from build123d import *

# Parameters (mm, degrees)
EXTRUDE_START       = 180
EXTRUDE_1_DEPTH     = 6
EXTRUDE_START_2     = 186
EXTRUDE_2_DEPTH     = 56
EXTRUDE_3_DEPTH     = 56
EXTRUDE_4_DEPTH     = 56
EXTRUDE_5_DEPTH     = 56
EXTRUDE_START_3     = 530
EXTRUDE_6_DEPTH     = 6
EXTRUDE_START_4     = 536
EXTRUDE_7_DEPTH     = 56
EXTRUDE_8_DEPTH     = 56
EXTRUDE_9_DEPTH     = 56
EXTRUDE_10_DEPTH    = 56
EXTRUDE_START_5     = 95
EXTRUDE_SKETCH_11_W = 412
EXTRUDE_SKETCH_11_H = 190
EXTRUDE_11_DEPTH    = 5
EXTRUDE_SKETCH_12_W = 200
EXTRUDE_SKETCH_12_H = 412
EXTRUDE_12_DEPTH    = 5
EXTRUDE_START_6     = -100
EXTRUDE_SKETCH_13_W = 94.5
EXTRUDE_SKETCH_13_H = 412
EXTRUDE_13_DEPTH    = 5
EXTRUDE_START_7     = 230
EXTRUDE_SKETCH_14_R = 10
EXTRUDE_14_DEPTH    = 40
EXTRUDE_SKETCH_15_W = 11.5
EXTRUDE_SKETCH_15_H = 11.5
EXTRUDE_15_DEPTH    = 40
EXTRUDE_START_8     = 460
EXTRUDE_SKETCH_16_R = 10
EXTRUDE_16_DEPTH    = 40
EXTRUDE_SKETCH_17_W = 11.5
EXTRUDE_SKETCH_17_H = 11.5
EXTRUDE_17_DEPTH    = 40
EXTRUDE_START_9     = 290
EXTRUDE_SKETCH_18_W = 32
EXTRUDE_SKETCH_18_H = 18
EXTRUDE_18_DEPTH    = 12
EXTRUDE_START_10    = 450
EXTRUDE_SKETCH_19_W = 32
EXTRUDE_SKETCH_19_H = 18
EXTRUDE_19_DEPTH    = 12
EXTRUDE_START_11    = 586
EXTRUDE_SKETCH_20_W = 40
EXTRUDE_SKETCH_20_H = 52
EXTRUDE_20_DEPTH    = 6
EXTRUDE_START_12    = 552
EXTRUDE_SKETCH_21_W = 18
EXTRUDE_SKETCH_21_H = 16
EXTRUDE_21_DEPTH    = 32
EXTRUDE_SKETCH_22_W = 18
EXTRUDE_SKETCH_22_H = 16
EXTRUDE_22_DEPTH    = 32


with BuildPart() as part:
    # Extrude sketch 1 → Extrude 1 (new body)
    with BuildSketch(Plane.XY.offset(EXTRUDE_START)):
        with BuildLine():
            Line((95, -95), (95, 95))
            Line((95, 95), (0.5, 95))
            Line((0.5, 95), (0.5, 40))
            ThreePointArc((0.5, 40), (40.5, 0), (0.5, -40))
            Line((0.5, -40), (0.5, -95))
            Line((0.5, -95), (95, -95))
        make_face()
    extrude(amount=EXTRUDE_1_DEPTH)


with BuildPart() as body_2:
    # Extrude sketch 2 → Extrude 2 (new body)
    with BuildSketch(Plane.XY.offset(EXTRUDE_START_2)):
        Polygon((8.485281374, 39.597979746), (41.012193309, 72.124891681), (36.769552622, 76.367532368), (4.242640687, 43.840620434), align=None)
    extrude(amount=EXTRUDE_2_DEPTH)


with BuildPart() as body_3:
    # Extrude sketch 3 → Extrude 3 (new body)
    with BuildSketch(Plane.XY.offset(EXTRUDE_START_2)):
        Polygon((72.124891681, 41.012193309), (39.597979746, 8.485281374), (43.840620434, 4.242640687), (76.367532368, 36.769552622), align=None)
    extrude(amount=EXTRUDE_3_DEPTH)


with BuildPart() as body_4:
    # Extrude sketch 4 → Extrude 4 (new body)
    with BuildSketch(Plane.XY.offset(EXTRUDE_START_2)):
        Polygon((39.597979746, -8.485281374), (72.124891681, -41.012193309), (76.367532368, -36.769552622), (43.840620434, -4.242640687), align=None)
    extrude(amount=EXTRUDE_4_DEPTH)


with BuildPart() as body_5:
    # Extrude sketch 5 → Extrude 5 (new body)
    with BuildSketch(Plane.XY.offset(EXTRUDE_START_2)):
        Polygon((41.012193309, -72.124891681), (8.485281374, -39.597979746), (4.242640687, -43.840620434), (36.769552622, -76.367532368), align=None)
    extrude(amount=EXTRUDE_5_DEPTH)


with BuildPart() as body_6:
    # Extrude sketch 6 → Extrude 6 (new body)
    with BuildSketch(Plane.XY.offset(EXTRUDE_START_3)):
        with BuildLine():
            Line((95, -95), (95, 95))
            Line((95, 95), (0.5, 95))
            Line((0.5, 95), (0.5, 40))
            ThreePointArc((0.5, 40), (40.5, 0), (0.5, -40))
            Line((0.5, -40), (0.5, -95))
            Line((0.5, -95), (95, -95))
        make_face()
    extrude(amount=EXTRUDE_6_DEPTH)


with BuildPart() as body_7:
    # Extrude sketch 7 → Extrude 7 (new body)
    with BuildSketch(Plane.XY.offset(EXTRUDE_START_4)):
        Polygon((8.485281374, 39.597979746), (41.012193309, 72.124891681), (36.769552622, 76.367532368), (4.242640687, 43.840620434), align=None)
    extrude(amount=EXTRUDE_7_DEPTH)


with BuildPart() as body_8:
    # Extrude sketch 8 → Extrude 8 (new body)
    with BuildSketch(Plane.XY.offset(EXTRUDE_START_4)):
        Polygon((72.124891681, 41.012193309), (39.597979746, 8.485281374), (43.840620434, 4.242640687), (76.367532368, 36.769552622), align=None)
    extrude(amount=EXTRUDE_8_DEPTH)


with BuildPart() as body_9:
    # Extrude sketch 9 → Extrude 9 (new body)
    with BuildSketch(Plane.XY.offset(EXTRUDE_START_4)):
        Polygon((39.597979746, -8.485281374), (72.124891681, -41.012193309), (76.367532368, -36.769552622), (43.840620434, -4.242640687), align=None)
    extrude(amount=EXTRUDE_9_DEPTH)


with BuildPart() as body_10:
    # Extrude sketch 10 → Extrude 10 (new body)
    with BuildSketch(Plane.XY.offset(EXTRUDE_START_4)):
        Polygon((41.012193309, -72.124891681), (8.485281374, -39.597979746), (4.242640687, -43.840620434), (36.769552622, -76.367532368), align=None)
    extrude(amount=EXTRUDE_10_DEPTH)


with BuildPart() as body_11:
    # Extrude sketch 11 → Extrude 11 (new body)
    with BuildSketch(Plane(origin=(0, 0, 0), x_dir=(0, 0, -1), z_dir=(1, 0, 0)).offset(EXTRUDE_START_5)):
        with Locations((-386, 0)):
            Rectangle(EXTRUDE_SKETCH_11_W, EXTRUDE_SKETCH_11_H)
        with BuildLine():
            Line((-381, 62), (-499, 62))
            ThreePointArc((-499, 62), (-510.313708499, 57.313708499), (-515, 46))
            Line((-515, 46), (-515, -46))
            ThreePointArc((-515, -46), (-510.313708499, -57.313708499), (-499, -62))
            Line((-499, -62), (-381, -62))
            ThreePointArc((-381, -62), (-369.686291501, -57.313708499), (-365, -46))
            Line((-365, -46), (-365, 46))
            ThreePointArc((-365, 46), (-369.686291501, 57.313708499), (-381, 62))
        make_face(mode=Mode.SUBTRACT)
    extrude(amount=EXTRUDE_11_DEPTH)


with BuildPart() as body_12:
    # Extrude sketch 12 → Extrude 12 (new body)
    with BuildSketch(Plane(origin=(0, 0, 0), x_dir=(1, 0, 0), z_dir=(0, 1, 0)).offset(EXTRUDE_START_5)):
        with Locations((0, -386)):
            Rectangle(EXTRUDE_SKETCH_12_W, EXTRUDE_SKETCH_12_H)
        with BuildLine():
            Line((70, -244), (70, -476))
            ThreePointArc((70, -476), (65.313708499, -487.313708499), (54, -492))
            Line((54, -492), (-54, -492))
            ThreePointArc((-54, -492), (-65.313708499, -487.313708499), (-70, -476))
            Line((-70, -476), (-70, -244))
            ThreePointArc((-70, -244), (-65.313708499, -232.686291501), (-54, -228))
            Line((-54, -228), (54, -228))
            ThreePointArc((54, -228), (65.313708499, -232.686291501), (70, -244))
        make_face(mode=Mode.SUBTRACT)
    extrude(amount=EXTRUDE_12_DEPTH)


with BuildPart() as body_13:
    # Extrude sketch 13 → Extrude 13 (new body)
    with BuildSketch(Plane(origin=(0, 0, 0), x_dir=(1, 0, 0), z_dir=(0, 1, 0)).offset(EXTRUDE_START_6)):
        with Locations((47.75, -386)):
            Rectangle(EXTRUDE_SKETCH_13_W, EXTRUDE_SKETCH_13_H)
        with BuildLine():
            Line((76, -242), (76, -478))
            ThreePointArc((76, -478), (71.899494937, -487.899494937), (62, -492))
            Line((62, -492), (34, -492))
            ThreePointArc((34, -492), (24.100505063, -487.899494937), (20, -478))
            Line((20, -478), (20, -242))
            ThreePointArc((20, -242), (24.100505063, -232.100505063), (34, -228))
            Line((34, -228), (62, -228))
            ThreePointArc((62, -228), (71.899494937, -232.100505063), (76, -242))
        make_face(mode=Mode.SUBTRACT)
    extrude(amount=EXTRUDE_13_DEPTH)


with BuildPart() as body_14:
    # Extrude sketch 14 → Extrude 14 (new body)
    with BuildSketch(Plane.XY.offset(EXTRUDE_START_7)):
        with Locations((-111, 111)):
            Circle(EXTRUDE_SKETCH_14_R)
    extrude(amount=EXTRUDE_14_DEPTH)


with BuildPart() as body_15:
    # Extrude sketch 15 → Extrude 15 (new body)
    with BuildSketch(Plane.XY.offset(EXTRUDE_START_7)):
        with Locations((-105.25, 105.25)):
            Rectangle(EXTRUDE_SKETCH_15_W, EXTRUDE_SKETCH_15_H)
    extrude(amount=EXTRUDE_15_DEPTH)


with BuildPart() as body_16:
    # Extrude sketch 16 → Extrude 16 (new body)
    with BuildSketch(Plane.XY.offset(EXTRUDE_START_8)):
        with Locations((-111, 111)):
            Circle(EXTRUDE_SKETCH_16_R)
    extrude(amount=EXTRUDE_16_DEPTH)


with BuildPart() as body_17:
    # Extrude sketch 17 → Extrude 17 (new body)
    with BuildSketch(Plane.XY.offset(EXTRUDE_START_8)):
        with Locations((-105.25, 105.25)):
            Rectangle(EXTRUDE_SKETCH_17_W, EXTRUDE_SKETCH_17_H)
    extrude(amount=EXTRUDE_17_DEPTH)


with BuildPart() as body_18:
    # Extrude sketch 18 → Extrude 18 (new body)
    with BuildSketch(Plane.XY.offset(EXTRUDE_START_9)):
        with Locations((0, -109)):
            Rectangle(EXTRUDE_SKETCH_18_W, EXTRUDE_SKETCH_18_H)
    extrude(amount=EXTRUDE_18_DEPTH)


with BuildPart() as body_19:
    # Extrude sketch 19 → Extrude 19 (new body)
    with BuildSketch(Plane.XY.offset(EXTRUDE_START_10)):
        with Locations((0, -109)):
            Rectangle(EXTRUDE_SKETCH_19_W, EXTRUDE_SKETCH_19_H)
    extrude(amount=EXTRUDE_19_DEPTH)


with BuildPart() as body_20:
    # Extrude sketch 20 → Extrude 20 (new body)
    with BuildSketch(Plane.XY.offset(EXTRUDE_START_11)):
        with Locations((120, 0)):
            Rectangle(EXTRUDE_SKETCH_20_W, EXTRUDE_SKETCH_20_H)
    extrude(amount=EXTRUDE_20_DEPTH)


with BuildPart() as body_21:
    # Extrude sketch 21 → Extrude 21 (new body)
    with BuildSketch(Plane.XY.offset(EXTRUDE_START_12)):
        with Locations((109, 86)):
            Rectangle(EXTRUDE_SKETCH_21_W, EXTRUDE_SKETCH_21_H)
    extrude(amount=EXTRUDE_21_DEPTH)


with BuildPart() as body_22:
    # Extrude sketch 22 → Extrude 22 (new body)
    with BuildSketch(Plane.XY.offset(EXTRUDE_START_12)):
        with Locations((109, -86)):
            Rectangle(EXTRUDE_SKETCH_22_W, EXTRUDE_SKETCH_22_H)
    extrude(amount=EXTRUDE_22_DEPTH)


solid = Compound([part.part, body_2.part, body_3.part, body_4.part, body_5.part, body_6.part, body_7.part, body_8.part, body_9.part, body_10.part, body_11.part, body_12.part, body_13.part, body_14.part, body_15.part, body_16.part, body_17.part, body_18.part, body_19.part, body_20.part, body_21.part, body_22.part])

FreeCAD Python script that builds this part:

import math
import FreeCAD as App
import Part
import Sketcher

V = App.Vector
Q = App.Units.Quantity


def add_polygon(sketch, points):
    """Adds a closed chain of lines whose ends are joined by coincident constraints."""
    first, n = sketch.GeometryCount, len(points)
    for a, b in zip(points, points[1:] + points[:1]):
        sketch.addGeometry(Part.LineSegment(App.Vector(*a, 0), App.Vector(*b, 0)), False)
    for i in range(n):
        sketch.addConstraint(Sketcher.Constraint("Coincident", first + i, 2, first + (i + 1) % n, 1))

doc = App.newDocument("Part")
params = doc.addObject("Spreadsheet::Sheet", "Params")
for row, (alias, value) in enumerate([
    ("sketch1_radius", "40 mm"),
    ("sketch1_height", "190 mm"),
    ("sketch1_width", "94.5 mm"),
    ("pad1_length", "6 mm"),
    ("sketch2_length", "46 mm"),
    ("sketch2_length2", "6 mm"),
    ("pad2_length", "56 mm"),
    ("sketch3_length", "46 mm"),
    ("sketch3_length2", "6 mm"),
    ("pad3_length", "56 mm"),
    ("sketch4_length", "46 mm"),
    ("sketch4_length2", "6 mm"),
    ("pad4_length", "56 mm"),
    ("sketch5_length", "46 mm"),
    ("sketch5_length2", "6 mm"),
    ("pad5_length", "56 mm"),
    ("sketch6_radius", "40 mm"),
    ("sketch6_height", "190 mm"),
    ("sketch6_width", "94.5 mm"),
    ("pad6_length", "6 mm"),
    ("sketch7_length", "46 mm"),
    ("sketch7_length2", "6 mm"),
    ("pad7_length", "56 mm"),
    ("sketch8_length", "46 mm"),
    ("sketch8_length2", "6 mm"),
    ("pad8_length", "56 mm"),
    ("sketch9_length", "46 mm"),
    ("sketch9_length2", "6 mm"),
    ("pad9_length", "56 mm"),
    ("sketch10_length", "46 mm"),
    ("sketch10_length2", "6 mm"),
    ("pad10_length", "56 mm"),
    ("sketch11_radius", "16 mm"),
    ("sketch11_width", "190 mm"),
    ("sketch11_width2", "92 mm"),
    ("sketch11_height", "412 mm"),
    ("sketch11_height2", "118 mm"),
    ("pad11_length", "5 mm"),
    ("sketch12_radius", "16 mm"),
    ("sketch12_width", "200 mm"),
    ("sketch12_width2", "108 mm"),
    ("sketch12_height", "412 mm"),
    ("sketch12_height2", "232 mm"),
    ("pad12_length", "5 mm"),
    ("sketch13_radius", "14 mm"),
    ("sketch13_width", "28 mm"),
    ("sketch13_height", "412 mm"),
    ("sketch13_height2", "236 mm"),
    ("sketch13_width2", "94.5 mm"),
    ("pad13_length", "5 mm"),
    ("sketch14_diameter", "20 mm"),
    ("pad14_length", "40 mm"),
    ("sketch15_width", "11.5 mm"),
    ("pad15_length", "40 mm"),
    ("sketch16_diameter", "20 mm"),
    ("pad16_length", "40 mm"),
    ("sketch17_width", "11.5 mm"),
    ("pad17_length", "40 mm"),
    ("sketch18_width", "32 mm"),
    ("sketch18_height", "18 mm"),
    ("pad18_length", "12 mm"),
    ("sketch19_width", "32 mm"),
    ("sketch19_height", "18 mm"),
    ("pad19_length", "12 mm"),
    ("sketch20_width", "40 mm"),
    ("sketch20_height", "52 mm"),
    ("pad20_length", "6 mm"),
    ("sketch21_width", "18 mm"),
    ("sketch21_height", "16 mm"),
    ("pad21_length", "32 mm"),
    ("sketch22_width", "18 mm"),
    ("sketch22_height", "16 mm"),
    ("pad22_length", "32 mm"),
], start=1):
    params.set(f"A{row}", alias)
    params.set(f"B{row}", "=" + value)
    params.setAlias(f"B{row}", alias)

body = doc.addObject("PartDesign::Body", "Body")

# Sketch on XY plane
sketch1 = body.newObject("Sketcher::SketchObject", "Sketch")
sketch1.AttachmentSupport = (doc.getObject("XY_Plane"), [""])
sketch1.MapMode = "FlatFace"
sketch1.AttachmentOffset = App.Placement(V(0, 0, 180), App.Rotation())
sketch1.addGeometry([
    Part.LineSegment(V(95, -95, 0), V(95, 95, 0)),  # 0
    Part.LineSegment(V(95, 95, 0), V(0, 95, 0)),  # 1
    Part.LineSegment(V(0, 95, 0), V(0, 40, 0)),  # 2
    Part.ArcOfCircle(Part.Circle(V(0, 0, 0), V(0, 0, 1), 40), math.radians(-90), math.radians(90)),  # 3
    Part.LineSegment(V(0, -40, 0), V(0, -95, 0)),  # 4
    Part.LineSegment(V(0, -95, 0), V(95, -95, 0)),  # 5
], False)
sketch1.addConstraint([
    Sketcher.Constraint("Coincident", 0, 2, 1, 1),
    Sketcher.Constraint("Coincident", 1, 2, 2, 1),
    Sketcher.Constraint("Coincident", 2, 2, 3, 2),
    Sketcher.Constraint("Coincident", 3, 1, 4, 1),
    Sketcher.Constraint("Coincident", 4, 2, 5, 1),
    Sketcher.Constraint("Coincident", 5, 2, 0, 1),
    Sketcher.Constraint("Vertical", 0),
    Sketcher.Constraint("Horizontal", 1),
    Sketcher.Constraint("Vertical", 2),
    Sketcher.Constraint("Vertical", 4),
    Sketcher.Constraint("Horizontal", 5),
    Sketcher.Constraint("Symmetric", 2, 2, 3, 1, -1),
    Sketcher.Constraint("Vertical", 3, 3, 1, 2),
    Sketcher.Constraint("Equal", 2, 4),
    Sketcher.Constraint("Radius", 3, 40.0),
    Sketcher.Constraint("DistanceY", 0, 1, 0, 2, 190.0),
    Sketcher.Constraint("DistanceX", 1, 2, 1, 1, 94.5),
    Sketcher.Constraint("DistanceX", -1, 1, 0, 2, 95.0),
])
sketch1.setExpression("Constraints[14]", "Params.sketch1_radius")
sketch1.setExpression("Constraints[15]", "Params.sketch1_height")
sketch1.setExpression("Constraints[16]", "Params.sketch1_width")
pad1 = body.newObject("PartDesign::Pad", "Pad")
pad1.Profile = sketch1
pad1.setExpression("Length", "Params.pad1_length")
body2 = doc.addObject("PartDesign::Body", "Body001")

# Sketch on XY plane
sketch2 = body2.newObject("Sketcher::SketchObject", "Sketch001")
sketch2.AttachmentSupport = (doc.getObject("XY_Plane001"), [""])
sketch2.MapMode = "FlatFace"
sketch2.AttachmentOffset = App.Placement(V(0, 0, 186), App.Rotation())
add_polygon(sketch2, [(8, 40), (41, 72), (37, 76), (4, 44)])  # lines 0-3
sketch2.addConstraint([
    Sketcher.Constraint("Perpendicular", 0, 1),
    Sketcher.Constraint("Perpendicular", 1, 2),
    Sketcher.Constraint("Perpendicular", 2, 3),
    Sketcher.Constraint("Angle", 0, Q("45 deg")),
    Sketcher.Constraint("Distance", 0, 46.0),
    Sketcher.Constraint("Distance", 1, 6.0),
    Sketcher.Constraint("DistanceY", -1, 1, 0, 2, 72.124892),
    Sketcher.Constraint("DistanceX", -1, 1, 2, 2, 4.242641),
])
sketch2.setExpression("Constraints[8]", "Params.sketch2_length")
sketch2.setExpression("Constraints[9]", "Params.sketch2_length2")
pad2 = body2.newObject("PartDesign::Pad", "Pad001")
pad2.Profile = sketch2
pad2.setExpression("Length", "Params.pad2_length")
body3 = doc.addObject("PartDesign::Body", "Body002")

# Sketch on XY plane
sketch3 = body3.newObject("Sketcher::SketchObject", "Sketch002")
sketch3.AttachmentSupport = (doc.getObject("XY_Plane002"), [""])
sketch3.MapMode = "FlatFace"
sketch3.AttachmentOffset = App.Placement(V(0, 0, 186), App.Rotation())
add_polygon(sketch3, [(72, 41), (40, 8), (44, 4), (76, 37)])  # lines 0-3
sketch3.addConstraint([
    Sketcher.Constraint("Perpendicular", 0, 1),
    Sketcher.Constraint("Perpendicular", 1, 2),
    Sketcher.Constraint("Perpendicular", 2, 3),
    Sketcher.Constraint("Angle", 0, Q("-135 deg")),
    Sketcher.Constraint("Distance", 0, 46.0),
    Sketcher.Constraint("Distance", 1, 6.0),
    Sketcher.Constraint("DistanceX", -1, 1, 0, 2, 39.59798),
    Sketcher.Constraint("DistanceY", -1, 1, 0, 2, 8.485281),
])
sketch3.setExpression("Constraints[8]", "Params.sketch3_length")
sketch3.setExpression("Constraints[9]", "Params.sketch3_length2")
pad3 = body3.newObject("PartDesign::Pad", "Pad002")
pad3.Profile = sketch3
pad3.setExpression("Length", "Params.pad3_length")
body4 = doc.addObject("PartDesign::Body", "Body003")

# Sketch on XY plane
sketch4 = body4.newObject("Sketcher::SketchObject", "Sketch003")
sketch4.AttachmentSupport = (doc.getObject("XY_Plane003"), [""])
sketch4.MapMode = "FlatFace"
sketch4.AttachmentOffset = App.Placement(V(0, 0, 186), App.Rotation())
add_polygon(sketch4, [(40, -8), (72, -41), (76, -37), (44, -4)])  # lines 0-3
sketch4.addConstraint([
    Sketcher.Constraint("Perpendicular", 0, 1),
    Sketcher.Constraint("Perpendicular", 1, 2),
    Sketcher.Constraint("Perpendicular", 2, 3),
    Sketcher.Constraint("Angle", 0, Q("-45 deg")),
    Sketcher.Constraint("Distance", 0, 46.0),
    Sketcher.Constraint("Distance", 1, 6.0),
    Sketcher.Constraint("DistanceX", -1, 1, 0, 2, 72.124892),
    Sketcher.Constraint("DistanceY", 2, 2, -1, 1, 4.242641),
])
sketch4.setExpression("Constraints[8]", "Params.sketch4_length")
sketch4.setExpression("Constraints[9]", "Params.sketch4_length2")
pad4 = body4.newObject("PartDesign::Pad", "Pad003")
pad4.Profile = sketch4
pad4.setExpression("Length", "Params.pad4_length")
body5 = doc.addObject("PartDesign::Body", "Body004")

# Sketch on XY plane
sketch5 = body5.newObject("Sketcher::SketchObject", "Sketch004")
sketch5.AttachmentSupport = (doc.getObject("XY_Plane004"), [""])
sketch5.MapMode = "FlatFace"
sketch5.AttachmentOffset = App.Placement(V(0, 0, 186), App.Rotation())
add_polygon(sketch5, [(41, -72), (8, -40), (4, -44), (37, -76)])  # lines 0-3
sketch5.addConstraint([
    Sketcher.Constraint("Perpendicular", 0, 1),
    Sketcher.Constraint("Perpendicular", 1, 2),
    Sketcher.Constraint("Perpendicular", 2, 3),
    Sketcher.Constraint("Angle", 0, Q("135 deg")),
    Sketcher.Constraint("Distance", 0, 46.0),
    Sketcher.Constraint("Distance", 1, 6.0),
    Sketcher.Constraint("DistanceX", -1, 1, 0, 2, 8.485281),
    Sketcher.Constraint("DistanceY", 0, 2, -1, 1, 39.59798),
])
sketch5.setExpression("Constraints[8]", "Params.sketch5_length")
sketch5.setExpression("Constraints[9]", "Params.sketch5_length2")
pad5 = body5.newObject("PartDesign::Pad", "Pad004")
pad5.Profile = sketch5
pad5.setExpression("Length", "Params.pad5_length")
body6 = doc.addObject("PartDesign::Body", "Body005")

# Sketch on XY plane
sketch6 = body6.newObject("Sketcher::SketchObject", "Sketch005")
sketch6.AttachmentSupport = (doc.getObject("XY_Plane005"), [""])
sketch6.MapMode = "FlatFace"
sketch6.AttachmentOffset = App.Placement(V(0, 0, 530), App.Rotation())
sketch6.addGeometry([
    Part.LineSegment(V(95, -95, 0), V(95, 95, 0)),  # 0
    Part.LineSegment(V(95, 95, 0), V(0, 95, 0)),  # 1
    Part.LineSegment(V(0, 95, 0), V(0, 40, 0)),  # 2
    Part.ArcOfCircle(Part.Circle(V(0, 0, 0), V(0, 0, 1), 40), math.radians(-90), math.radians(90)),  # 3
    Part.LineSegment(V(0, -40, 0), V(0, -95, 0)),  # 4
    Part.LineSegment(V(0, -95, 0), V(95, -95, 0)),  # 5
], False)
sketch6.addConstraint([
    Sketcher.Constraint("Coincident", 0, 2, 1, 1),
    Sketcher.Constraint("Coincident", 1, 2, 2, 1),
    Sketcher.Constraint("Coincident", 2, 2, 3, 2),
    Sketcher.Constraint("Coincident", 3, 1, 4, 1),
    Sketcher.Constraint("Coincident", 4, 2, 5, 1),
    Sketcher.Constraint("Coincident", 5, 2, 0, 1),
    Sketcher.Constraint("Vertical", 0),
    Sketcher.Constraint("Horizontal", 1),
    Sketcher.Constraint("Vertical", 2),
    Sketcher.Constraint("Vertical", 4),
    Sketcher.Constraint("Horizontal", 5),
    Sketcher.Constraint("Symmetric", 2, 2, 3, 1, -1),
    Sketcher.Constraint("Vertical", 3, 3, 1, 2),
    Sketcher.Constraint("Equal", 2, 4),
    Sketcher.Constraint("Radius", 3, 40.0),
    Sketcher.Constraint("DistanceY", 0, 1, 0, 2, 190.0),
    Sketcher.Constraint("DistanceX", 1, 2, 1, 1, 94.5),
    Sketcher.Constraint("DistanceX", -1, 1, 0, 2, 95.0),
])
sketch6.setExpression("Constraints[14]", "Params.sketch6_radius")
sketch6.setExpression("Constraints[15]", "Params.sketch6_height")
sketch6.setExpression("Constraints[16]", "Params.sketch6_width")
pad6 = body6.newObject("PartDesign::Pad", "Pad005")
pad6.Profile = sketch6
pad6.setExpression("Length", "Params.pad6_length")
body7 = doc.addObject("PartDesign::Body", "Body006")

# Sketch on XY plane
sketch7 = body7.newObject("Sketcher::SketchObject", "Sketch006")
sketch7.AttachmentSupport = (doc.getObject("XY_Plane006"), [""])
sketch7.MapMode = "FlatFace"
sketch7.AttachmentOffset = App.Placement(V(0, 0, 536), App.Rotation())
add_polygon(sketch7, [(8, 40), (41, 72), (37, 76), (4, 44)])  # lines 0-3
sketch7.addConstraint([
    Sketcher.Constraint("Perpendicular", 0, 1),
    Sketcher.Constraint("Perpendicular", 1, 2),
    Sketcher.Constraint("Perpendicular", 2, 3),
    Sketcher.Constraint("Angle", 0, Q("45 deg")),
    Sketcher.Constraint("Distance", 0, 46.0),
    Sketcher.Constraint("Distance", 1, 6.0),
    Sketcher.Constraint("DistanceY", -1, 1, 0, 2, 72.124892),
    Sketcher.Constraint("DistanceX", -1, 1, 2, 2, 4.242641),
])
sketch7.setExpression("Constraints[8]", "Params.sketch7_length")
sketch7.setExpression("Constraints[9]", "Params.sketch7_length2")
pad7 = body7.newObject("PartDesign::Pad", "Pad006")
pad7.Profile = sketch7
pad7.setExpression("Length", "Params.pad7_length")
body8 = doc.addObject("PartDesign::Body", "Body007")

# Sketch on XY plane
sketch8 = body8.newObject("Sketcher::SketchObject", "Sketch007")
sketch8.AttachmentSupport = (doc.getObject("XY_Plane007"), [""])
sketch8.MapMode = "FlatFace"
sketch8.AttachmentOffset = App.Placement(V(0, 0, 536), App.Rotation())
add_polygon(sketch8, [(72, 41), (40, 8), (44, 4), (76, 37)])  # lines 0-3
sketch8.addConstraint([
    Sketcher.Constraint("Perpendicular", 0, 1),
    Sketcher.Constraint("Perpendicular", 1, 2),
    Sketcher.Constraint("Perpendicular", 2, 3),
    Sketcher.Constraint("Angle", 0, Q("-135 deg")),
    Sketcher.Constraint("Distance", 0, 46.0),
    Sketcher.Constraint("Distance", 1, 6.0),
    Sketcher.Constraint("DistanceX", -1, 1, 0, 2, 39.59798),
    Sketcher.Constraint("DistanceY", -1, 1, 0, 2, 8.485281),
])
sketch8.setExpression("Constraints[8]", "Params.sketch8_length")
sketch8.setExpression("Constraints[9]", "Params.sketch8_length2")
pad8 = body8.newObject("PartDesign::Pad", "Pad007")
pad8.Profile = sketch8
pad8.setExpression("Length", "Params.pad8_length")
body9 = doc.addObject("PartDesign::Body", "Body008")

# Sketch on XY plane
sketch9 = body9.newObject("Sketcher::SketchObject", "Sketch008")
sketch9.AttachmentSupport = (doc.getObject("XY_Plane008"), [""])
sketch9.MapMode = "FlatFace"
sketch9.AttachmentOffset = App.Placement(V(0, 0, 536), App.Rotation())
add_polygon(sketch9, [(40, -8), (72, -41), (76, -37), (44, -4)])  # lines 0-3
sketch9.addConstraint([
    Sketcher.Constraint("Perpendicular", 0, 1),
    Sketcher.Constraint("Perpendicular", 1, 2),
    Sketcher.Constraint("Perpendicular", 2, 3),
    Sketcher.Constraint("Angle", 0, Q("-45 deg")),
    Sketcher.Constraint("Distance", 0, 46.0),
    Sketcher.Constraint("Distance", 1, 6.0),
    Sketcher.Constraint("DistanceX", -1, 1, 0, 2, 72.124892),
    Sketcher.Constraint("DistanceY", 2, 2, -1, 1, 4.242641),
])
sketch9.setExpression("Constraints[8]", "Params.sketch9_length")
sketch9.setExpression("Constraints[9]", "Params.sketch9_length2")
pad9 = body9.newObject("PartDesign::Pad", "Pad008")
pad9.Profile = sketch9
pad9.setExpression("Length", "Params.pad9_length")
body10 = doc.addObject("PartDesign::Body", "Body009")

# Sketch on XY plane
sketch10 = body10.newObject("Sketcher::SketchObject", "Sketch009")
sketch10.AttachmentSupport = (doc.getObject("XY_Plane009"), [""])
sketch10.MapMode = "FlatFace"
sketch10.AttachmentOffset = App.Placement(V(0, 0, 536), App.Rotation())
add_polygon(sketch10, [(41, -72), (8, -40), (4, -44), (37, -76)])  # lines 0-3
sketch10.addConstraint([
    Sketcher.Constraint("Perpendicular", 0, 1),
    Sketcher.Constraint("Perpendicular", 1, 2),
    Sketcher.Constraint("Perpendicular", 2, 3),
    Sketcher.Constraint("Angle", 0, Q("135 deg")),
    Sketcher.Constraint("Distance", 0, 46.0),
    Sketcher.Constraint("Distance", 1, 6.0),
    Sketcher.Constraint("DistanceX", -1, 1, 0, 2, 8.485281),
    Sketcher.Constraint("DistanceY", 0, 2, -1, 1, 39.59798),
])
sketch10.setExpression("Constraints[8]", "Params.sketch10_length")
sketch10.setExpression("Constraints[9]", "Params.sketch10_length2")
pad10 = body10.newObject("PartDesign::Pad", "Pad009")
pad10.Profile = sketch10
pad10.setExpression("Length", "Params.pad10_length")
body11 = doc.addObject("PartDesign::Body", "Body010")

# Sketch on YZ plane
sketch11 = body11.newObject("Sketcher::SketchObject", "Sketch010")
sketch11.AttachmentSupport = (doc.getObject("YZ_Plane010"), [""])
sketch11.MapMode = "FlatFace"
sketch11.AttachmentOffset = App.Placement(V(0, 0, 95), App.Rotation())
add_polygon(sketch11, [(95, 592), (-95, 592), (-95, 180), (95, 180)])  # lines 0-3
sketch11.addGeometry(Part.LineSegment(V(62, 499, 0), V(62, 381, 0)), False)  # 4
sketch11.addGeometry(Part.ArcOfCircle(Part.Circle(V(46, 381, 0), V(0, 0, 1), 16), math.radians(-90), math.radians(0)), False)  # 5
sketch11.addGeometry(Part.LineSegment(V(46, 365, 0), V(-46, 365, 0)), False)  # 6
sketch11.addGeometry(Part.ArcOfCircle(Part.Circle(V(-46, 381, 0), V(0, 0, 1), 16), math.radians(180), math.radians(270)), False)  # 7
sketch11.addGeometry(Part.LineSegment(V(-62, 381, 0), V(-62, 499, 0)), False)  # 8
sketch11.addGeometry(Part.ArcOfCircle(Part.Circle(V(-46, 499, 0), V(0, 0, 1), 16), math.radians(90), math.radians(180)), False)  # 9
sketch11.addGeometry(Part.LineSegment(V(-46, 515, 0), V(46, 515, 0)), False)  # 10
sketch11.addGeometry(Part.ArcOfCircle(Part.Circle(V(46, 499, 0), V(0, 0, 1), 16), math.radians(0), math.radians(90)), False)  # 11
sketch11.addConstraint([
    Sketcher.Constraint("Tangent", 4, 2, 5, 2),
    Sketcher.Constraint("Tangent", 5, 1, 6, 1),
    Sketcher.Constraint("Tangent", 6, 2, 7, 2),
    Sketcher.Constraint("Tangent", 7, 1, 8, 1),
    Sketcher.Constraint("Tangent", 8, 2, 9, 2),
    Sketcher.Constraint("Tangent", 9, 1, 10, 1),
    Sketcher.Constraint("Tangent", 10, 2, 11, 2),
    Sketcher.Constraint("Tangent", 11, 1, 4, 1),
    Sketcher.Constraint("Horizontal", 0),
    Sketcher.Constraint("Vertical", 1),
    Sketcher.Constraint("Horizontal", 2),
    Sketcher.Constraint("Vertical", 3),
    Sketcher.Constraint("Vertical", 4),
    Sketcher.Constraint("Horizontal", 6),
    Sketcher.Constraint("Vertical", 8),
    Sketcher.Constraint("Horizontal", 10),
    Sketcher.Constraint("Equal", 5, 7),
    Sketcher.Constraint("Equal", 7, 9),
    Sketcher.Constraint("Equal", 9, 11),
    Sketcher.Constraint("Radius", 5, 16.0),
    Sketcher.Constraint("DistanceX", 0, 2, 0, 1, 190.0),
    Sketcher.Constraint("DistanceX", 6, 2, 6, 1, 92.0),
    Sketcher.Constraint("DistanceY", 1, 2, 1, 1, 412.0),
    Sketcher.Constraint("DistanceY", 4, 2, 4, 1, 118.0),
    Sketcher.Constraint("DistanceX", -1, 1, 5, 3, 46.0),
    Sketcher.Constraint("DistanceY", -1, 1, 5, 3, 381.0),
    Sketcher.Constraint("DistanceX", 0, 2, -1, 1, 95.0),
    Sketcher.Constraint("DistanceY", -1, 1, 0, 2, 592.0),
])
sketch11.setExpression("Constraints[23]", "Params.sketch11_radius")
sketch11.setExpression("Constraints[24]", "Params.sketch11_width")
sketch11.setExpression("Constraints[25]", "Params.sketch11_width2")
sketch11.setExpression("Constraints[26]", "Params.sketch11_height")
sketch11.setExpression("Constraints[27]", "Params.sketch11_height2")
pad11 = body11.newObject("PartDesign::Pad", "Pad010")
pad11.Profile = sketch11
pad11.setExpression("Length", "Params.pad11_length")
body12 = doc.addObject("PartDesign::Body", "Body011")

# Sketch on XZ plane
sketch12 = body12.newObject("Sketcher::SketchObject", "Sketch011")
sketch12.AttachmentSupport = (doc.getObject("XZ_Plane011"), [""])
sketch12.MapMode = "FlatFace"
sketch12.AttachmentOffset = App.Placement(V(0, 0, -95), App.Rotation())
add_polygon(sketch12, [(-100, 180), (-100, 592), (100, 592), (100, 180)])  # lines 0-3
sketch12.addGeometry(Part.ArcOfCircle(Part.Circle(V(54, 244, 0), V(0, 0, 1), 16), math.radians(-90), math.radians(0)), False)  # 4
sketch12.addGeometry(Part.LineSegment(V(70, 244, 0), V(70, 476, 0)), False)  # 5
sketch12.addGeometry(Part.ArcOfCircle(Part.Circle(V(54, 476, 0), V(0, 0, 1), 16), math.radians(0), math.radians(90)), False)  # 6
sketch12.addGeometry(Part.LineSegment(V(54, 492, 0), V(-54, 492, 0)), False)  # 7
sketch12.addGeometry(Part.ArcOfCircle(Part.Circle(V(-54, 476, 0), V(0, 0, 1), 16), math.radians(90), math.radians(180)), False)  # 8
sketch12.addGeometry(Part.LineSegment(V(-70, 476, 0), V(-70, 244, 0)), False)  # 9
sketch12.addGeometry(Part.ArcOfCircle(Part.Circle(V(-54, 244, 0), V(0, 0, 1), 16), math.radians(180), math.radians(270)), False)  # 10
sketch12.addGeometry(Part.LineSegment(V(-54, 228, 0), V(54, 228, 0)), False)  # 11
sketch12.addConstraint([
    Sketcher.Constraint("Tangent", 4, 2, 5, 1),
    Sketcher.Constraint("Tangent", 5, 2, 6, 1),
    Sketcher.Constraint("Tangent", 6, 2, 7, 1),
    Sketcher.Constraint("Tangent", 7, 2, 8, 1),
    Sketcher.Constraint("Tangent", 8, 2, 9, 1),
    Sketcher.Constraint("Tangent", 9, 2, 10, 1),
    Sketcher.Constraint("Tangent", 10, 2, 11, 1),
    Sketcher.Constraint("Tangent", 11, 2, 4, 1),
    Sketcher.Constraint("Vertical", 0),
    Sketcher.Constraint("Horizontal", 1),
    Sketcher.Constraint("Vertical", 2),
    Sketcher.Constraint("Horizontal", 3),
    Sketcher.Constraint("Vertical", 5),
    Sketcher.Constraint("Horizontal", 7),
    Sketcher.Constraint("Vertical", 9),
    Sketcher.Constraint("Horizontal", 11),
    Sketcher.Constraint("Equal", 4, 6),
    Sketcher.Constraint("Equal", 6, 8),
    Sketcher.Constraint("Equal", 8, 10),
    Sketcher.Constraint("Radius", 4, 16.0),
    Sketcher.Constraint("DistanceX", 1, 1, 1, 2, 200.0),
    Sketcher.Constraint("DistanceX", 7, 2, 7, 1, 108.0),
    Sketcher.Constraint("DistanceY", 0, 1, 0, 2, 412.0),
    Sketcher.Constraint("DistanceY", 5, 1, 5, 2, 232.0),
    Sketcher.Constraint("DistanceX", -1, 1, 4, 3, 54.0),
    Sketcher.Constraint("DistanceY", -1, 1, 4, 3, 244.0),
    Sketcher.Constraint("DistanceX", 0, 2, -1, 1, 100.0),
    Sketcher.Constraint("DistanceY", -1, 1, 0, 2, 592.0),
])
sketch12.setExpression("Constraints[23]", "Params.sketch12_radius")
sketch12.setExpression("Constraints[24]", "Params.sketch12_width")
sketch12.setExpression("Constraints[25]", "Params.sketch12_width2")
sketch12.setExpression("Constraints[26]", "Params.sketch12_height")
sketch12.setExpression("Constraints[27]", "Params.sketch12_height2")
pad12 = body12.newObject("PartDesign::Pad", "Pad011")
pad12.Profile = sketch12
pad12.setExpression("Length", "Params.pad12_length")
pad12.Reversed = True
body13 = doc.addObject("PartDesign::Body", "Body012")

# Sketch on XZ plane
sketch13 = body13.newObject("Sketcher::SketchObject", "Sketch012")
sketch13.AttachmentSupport = (doc.getObject("XZ_Plane012"), [""])
sketch13.MapMode = "FlatFace"
sketch13.AttachmentOffset = App.Placement(V(0, 0, 100), App.Rotation())
add_polygon(sketch13, [(0, 180), (0, 592), (95, 592), (95, 180)])  # lines 0-3
sketch13.addGeometry(Part.ArcOfCircle(Part.Circle(V(62, 242, 0), V(0, 0, 1), 14), math.radians(-90), math.radians(0)), False)  # 4
sketch13.addGeometry(Part.LineSegment(V(76, 242, 0), V(76, 478, 0)), False)  # 5
sketch13.addGeometry(Part.ArcOfCircle(Part.Circle(V(62, 478, 0), V(0, 0, 1), 14), math.radians(0), math.radians(90)), False)  # 6
sketch13.addGeometry(Part.LineSegment(V(62, 492, 0), V(34, 492, 0)), False)  # 7
sketch13.addGeometry(Part.ArcOfCircle(Part.Circle(V(34, 478, 0), V(0, 0, 1), 14), math.radians(90), math.radians(180)), False)  # 8
sketch13.addGeometry(Part.LineSegment(V(20, 478, 0), V(20, 242, 0)), False)  # 9
sketch13.addGeometry(Part.ArcOfCircle(Part.Circle(V(34, 242, 0), V(0, 0, 1), 14), math.radians(180), math.radians(270)), False)  # 10
sketch13.addGeometry(Part.LineSegment(V(34, 228, 0), V(62, 228, 0)), False)  # 11
sketch13.addConstraint([
    Sketcher.Constraint("Tangent", 4, 2, 5, 1),
    Sketcher.Constraint("Tangent", 5, 2, 6, 1),
    Sketcher.Constraint("Tangent", 6, 2, 7, 1),
    Sketcher.Constraint("Tangent", 7, 2, 8, 1),
    Sketcher.Constraint("Tangent", 8, 2, 9, 1),
    Sketcher.Constraint("Tangent", 9, 2, 10, 1),
    Sketcher.Constraint("Tangent", 10, 2, 11, 1),
    Sketcher.Constraint("Tangent", 11, 2, 4, 1),
    Sketcher.Constraint("Vertical", 0),
    Sketcher.Constraint("Horizontal", 1),
    Sketcher.Constraint("Vertical", 2),
    Sketcher.Constraint("Horizontal", 3),
    Sketcher.Constraint("Vertical", 5),
    Sketcher.Constraint("Horizontal", 7),
    Sketcher.Constraint("Vertical", 9),
    Sketcher.Constraint("Horizontal", 11),
    Sketcher.Constraint("Equal", 4, 6),
    Sketcher.Constraint("Equal", 6, 8),
    Sketcher.Constraint("Equal", 8, 10),
    Sketcher.Constraint("Radius", 4, 14.0),
    Sketcher.Constraint("DistanceX", 7, 2, 7, 1, 28.0),
    Sketcher.Constraint("DistanceY", 0, 1, 0, 2, 412.0),
    Sketcher.Constraint("DistanceY", 5, 1, 5, 2, 236.0),
    Sketcher.Constraint("DistanceX", 1, 1, 1, 2, 94.5),
    Sketcher.Constraint("DistanceX", -1, 1, 4, 3, 62.0),
    Sketcher.Constraint("DistanceY", -1, 1, 4, 3, 242.0),
    Sketcher.Constraint("DistanceY", -1, 1, 0, 2, 592.0),
    Sketcher.Constraint("DistanceX", -1, 1, 1, 2, 95.0),
])
sketch13.setExpression("Constraints[23]", "Params.sketch13_radius")
sketch13.setExpression("Constraints[24]", "Params.sketch13_width")
sketch13.setExpression("Constraints[25]", "Params.sketch13_height")
sketch13.setExpression("Constraints[26]", "Params.sketch13_height2")
sketch13.setExpression("Constraints[27]", "Params.sketch13_width2")
pad13 = body13.newObject("PartDesign::Pad", "Pad012")
pad13.Profile = sketch13
pad13.setExpression("Length", "Params.pad13_length")
pad13.Reversed = True
body14 = doc.addObject("PartDesign::Body", "Body013")

# Sketch on XY plane
sketch14 = body14.newObject("Sketcher::SketchObject", "Sketch013")
sketch14.AttachmentSupport = (doc.getObject("XY_Plane013"), [""])
sketch14.MapMode = "FlatFace"
sketch14.AttachmentOffset = App.Placement(V(0, 0, 230), App.Rotation())
sketch14.addGeometry(Part.Circle(V(-111, 111, 0), V(0, 0, 1), 10), False)
sketch14.addConstraint([
    Sketcher.Constraint("Diameter", 0, 20.0),
    Sketcher.Constraint("DistanceX", 0, 3, -1, 1, 111.0),
    Sketcher.Constraint("DistanceY", -1, 1, 0, 3, 111.0),
])
sketch14.setExpression("Constraints[0]", "Params.sketch14_diameter")
pad14 = body14.newObject("PartDesign::Pad", "Pad013")
pad14.Profile = sketch14
pad14.setExpression("Length", "Params.pad14_length")
body15 = doc.addObject("PartDesign::Body", "Body014")

# Sketch on XY plane
sketch15 = body15.newObject("Sketcher::SketchObject", "Sketch014")
sketch15.AttachmentSupport = (doc.getObject("XY_Plane014"), [""])
sketch15.MapMode = "FlatFace"
sketch15.AttachmentOffset = App.Placement(V(0, 0, 230), App.Rotation())
add_polygon(sketch15, [(-111, 111), (-111, 100), (-100, 100), (-100, 111)])  # lines 0-3
sketch15.addConstraint([
    Sketcher.Constraint("Vertical", 0),
    Sketcher.Constraint("Horizontal", 1),
    Sketcher.Constraint("Vertical", 2),
    Sketcher.Constraint("Horizontal", 3),
    Sketcher.Constraint("Equal", 3, 0),
    Sketcher.Constraint("DistanceX", 1, 1, 1, 2, 11.5),
    Sketcher.Constraint("DistanceX", 0, 2, -1, 1, 111.0),
    Sketcher.Constraint("DistanceY", -1, 1, 2, 2, 111.0),
])
sketch15.setExpression("Constraints[9]", "Params.sketch15_width")
pad15 = body15.newObject("PartDesign::Pad", "Pad014")
pad15.Profile = sketch15
pad15.setExpression("Length", "Params.pad15_length")
body16 = doc.addObject("PartDesign::Body", "Body015")

# Sketch on XY plane
sketch16 = body16.newObject("Sketcher::SketchObject", "Sketch015")
sketch16.AttachmentSupport = (doc.getObject("XY_Plane015"), [""])
sketch16.MapMode = "FlatFace"
sketch16.AttachmentOffset = App.Placement(V(0, 0, 460), App.Rotation())
sketch16.addGeometry(Part.Circle(V(-111, 111, 0), V(0, 0, 1), 10), False)
sketch16.addConstraint([
    Sketcher.Constraint("Diameter", 0, 20.0),
    Sketcher.Constraint("DistanceX", 0, 3, -1, 1, 111.0),
    Sketcher.Constraint("DistanceY", -1, 1, 0, 3, 111.0),
])
sketch16.setExpression("Constraints[0]", "Params.sketch16_diameter")
pad16 = body16.newObject("PartDesign::Pad", "Pad015")
pad16.Profile = sketch16
pad16.setExpression("Length", "Params.pad16_length")
body17 = doc.addObject("PartDesign::Body", "Body016")

# Sketch on XY plane
sketch17 = body17.newObject("Sketcher::SketchObject", "Sketch016")
sketch17.AttachmentSupport = (doc.getObject("XY_Plane016"), [""])
sketch17.MapMode = "FlatFace"
sketch17.AttachmentOffset = App.Placement(V(0, 0, 460), App.Rotation())
add_polygon(sketch17, [(-111, 111), (-111, 100), (-100, 100), (-100, 111)])  # lines 0-3
sketch17.addConstraint([
    Sketcher.Constraint("Vertical", 0),
    Sketcher.Constraint("Horizontal", 1),
    Sketcher.Constraint("Vertical", 2),
    Sketcher.Constraint("Horizontal", 3),
    Sketcher.Constraint("Equal", 3, 0),
    Sketcher.Constraint("DistanceX", 1, 1, 1, 2, 11.5),
    Sketcher.Constraint("DistanceX", 0, 2, -1, 1, 111.0),
    Sketcher.Constraint("DistanceY", -1, 1, 2, 2, 111.0),
])
sketch17.setExpression("Constraints[9]", "Params.sketch17_width")
pad17 = body17.newObject("PartDesign::Pad", "Pad016")
pad17.Profile = sketch17
pad17.setExpression("Length", "Params.pad17_length")
body18 = doc.addObject("PartDesign::Body", "Body017")

# Sketch on XY plane
sketch18 = body18.newObject("Sketcher::SketchObject", "Sketch017")
sketch18.AttachmentSupport = (doc.getObject("XY_Plane017"), [""])
sketch18.MapMode = "FlatFace"
sketch18.AttachmentOffset = App.Placement(V(0, 0, 290), App.Rotation())
add_polygon(sketch18, [(-16, -100), (-16, -118), (16, -118), (16, -100)])  # lines 0-3
sketch18.addConstraint([
    Sketcher.Constraint("Vertical", 0),
    Sketcher.Constraint("Horizontal", 1),
    Sketcher.Constraint("Vertical", 2),
    Sketcher.Constraint("Horizontal", 3),
    Sketcher.Constraint("DistanceX", 1, 1, 1, 2, 32.0),
    Sketcher.Constraint("DistanceY", 0, 2, 0, 1, 18.0),
    Sketcher.Constraint("DistanceX", 0, 2, -1, 1, 16.0),
    Sketcher.Constraint("DistanceY", 0, 2, -1, 1, 118.0),
])
sketch18.setExpression("Constraints[8]", "Params.sketch18_width")
sketch18.setExpression("Constraints[9]", "Params.sketch18_height")
pad18 = body18.newObject("PartDesign::Pad", "Pad017")
pad18.Profile = sketch18
pad18.setExpression("Length", "Params.pad18_length")
body19 = doc.addObject("PartDesign::Body", "Body018")

# Sketch on XY plane
sketch19 = body19.newObject("Sketcher::SketchObject", "Sketch018")
sketch19.AttachmentSupport = (doc.getObject("XY_Plane018"), [""])
sketch19.MapMode = "FlatFace"
sketch19.AttachmentOffset = App.Placement(V(0, 0, 450), App.Rotation())
add_polygon(sketch19, [(-16, -100), (-16, -118), (16, -118), (16, -100)])  # lines 0-3
sketch19.addConstraint([
    Sketcher.Constraint("Vertical", 0),
    Sketcher.Constraint("Horizontal", 1),
    Sketcher.Constraint("Vertical", 2),
    Sketcher.Constraint("Horizontal", 3),
    Sketcher.Constraint("DistanceX", 1, 1, 1, 2, 32.0),
    Sketcher.Constraint("DistanceY", 0, 2, 0, 1, 18.0),
    Sketcher.Constraint("DistanceX", 0, 2, -1, 1, 16.0),
    Sketcher.Constraint("DistanceY", 0, 2, -1, 1, 118.0),
])
sketch19.setExpression("Constraints[8]", "Params.sketch19_width")
sketch19.setExpression("Constraints[9]", "Params.sketch19_height")
pad19 = body19.newObject("PartDesign::Pad", "Pad018")
pad19.Profile = sketch19
pad19.setExpression("Length", "Params.pad19_length")
body20 = doc.addObject("PartDesign::Body", "Body019")

# Sketch on XY plane
sketch20 = body20.newObject("Sketcher::SketchObject", "Sketch019")
sketch20.AttachmentSupport = (doc.getObject("XY_Plane019"), [""])
sketch20.MapMode = "FlatFace"
sketch20.AttachmentOffset = App.Placement(V(0, 0, 586), App.Rotation())
add_polygon(sketch20, [(100, 26), (100, -26), (140, -26), (140, 26)])  # lines 0-3
sketch20.addConstraint([
    Sketcher.Constraint("Vertical", 0),
    Sketcher.Constraint("Horizontal", 1),
    Sketcher.Constraint("Vertical", 2),
    Sketcher.Constraint("Horizontal", 3),
    Sketcher.Constraint("DistanceX", 1, 1, 1, 2, 40.0),
    Sketcher.Constraint("DistanceY", 0, 2, 0, 1, 52.0),
    Sketcher.Constraint("DistanceX", -1, 1, 0, 2, 100.0),
    Sketcher.Constraint("DistanceY", 0, 2, -1, 1, 26.0),
])
sketch20.setExpression("Constraints[8]", "Params.sketch20_width")
sketch20.setExpression("Constraints[9]", "Params.sketch20_height")
pad20 = body20.newObject("PartDesign::Pad", "Pad019")
pad20.Profile = sketch20
pad20.setExpression("Length", "Params.pad20_length")
body21 = doc.addObject("PartDesign::Body", "Body020")

# Sketch on XY plane
sketch21 = body21.newObject("Sketcher::SketchObject", "Sketch020")
sketch21.AttachmentSupport = (doc.getObject("XY_Plane020"), [""])
sketch21.MapMode = "FlatFace"
sketch21.AttachmentOffset = App.Placement(V(0, 0, 552), App.Rotation())
add_polygon(sketch21, [(100, 94), (100, 78), (118, 78), (118, 94)])  # lines 0-3
sketch21.addConstraint([
    Sketcher.Constraint("Vertical", 0),
    Sketcher.Constraint("Horizontal", 1),
    Sketcher.Constraint("Vertical", 2),
    Sketcher.Constraint("Horizontal", 3),
    Sketcher.Constraint("DistanceX", 1, 1, 1, 2, 18.0),
    Sketcher.Constraint("DistanceY", 0, 2, 0, 1, 16.0),
    Sketcher.Constraint("DistanceX", -1, 1, 0, 2, 100.0),
    Sketcher.Constraint("DistanceY", -1, 1, 0, 2, 78.0),
])
sketch21.setExpression("Constraints[8]", "Params.sketch21_width")
sketch21.setExpression("Constraints[9]", "Params.sketch21_height")
pad21 = body21.newObject("PartDesign::Pad", "Pad020")
pad21.Profile = sketch21
pad21.setExpression("Length", "Params.pad21_length")
body22 = doc.addObject("PartDesign::Body", "Body021")

# Sketch on XY plane
sketch22 = body22.newObject("Sketcher::SketchObject", "Sketch021")
sketch22.AttachmentSupport = (doc.getObject("XY_Plane021"), [""])
sketch22.MapMode = "FlatFace"
sketch22.AttachmentOffset = App.Placement(V(0, 0, 552), App.Rotation())
add_polygon(sketch22, [(100, -78), (100, -94), (118, -94), (118, -78)])  # lines 0-3
sketch22.addConstraint([
    Sketcher.Constraint("Vertical", 0),
    Sketcher.Constraint("Horizontal", 1),
    Sketcher.Constraint("Vertical", 2),
    Sketcher.Constraint("Horizontal", 3),
    Sketcher.Constraint("DistanceX", 1, 1, 1, 2, 18.0),
    Sketcher.Constraint("DistanceY", 0, 2, 0, 1, 16.0),
    Sketcher.Constraint("DistanceX", -1, 1, 0, 2, 100.0),
    Sketcher.Constraint("DistanceY", 0, 2, -1, 1, 94.0),
])
sketch22.setExpression("Constraints[8]", "Params.sketch22_width")
sketch22.setExpression("Constraints[9]", "Params.sketch22_height")
pad22 = body22.newObject("PartDesign::Pad", "Pad021")
pad22.Profile = sketch22
pad22.setExpression("Length", "Params.pad22_length")

doc.recompute()
